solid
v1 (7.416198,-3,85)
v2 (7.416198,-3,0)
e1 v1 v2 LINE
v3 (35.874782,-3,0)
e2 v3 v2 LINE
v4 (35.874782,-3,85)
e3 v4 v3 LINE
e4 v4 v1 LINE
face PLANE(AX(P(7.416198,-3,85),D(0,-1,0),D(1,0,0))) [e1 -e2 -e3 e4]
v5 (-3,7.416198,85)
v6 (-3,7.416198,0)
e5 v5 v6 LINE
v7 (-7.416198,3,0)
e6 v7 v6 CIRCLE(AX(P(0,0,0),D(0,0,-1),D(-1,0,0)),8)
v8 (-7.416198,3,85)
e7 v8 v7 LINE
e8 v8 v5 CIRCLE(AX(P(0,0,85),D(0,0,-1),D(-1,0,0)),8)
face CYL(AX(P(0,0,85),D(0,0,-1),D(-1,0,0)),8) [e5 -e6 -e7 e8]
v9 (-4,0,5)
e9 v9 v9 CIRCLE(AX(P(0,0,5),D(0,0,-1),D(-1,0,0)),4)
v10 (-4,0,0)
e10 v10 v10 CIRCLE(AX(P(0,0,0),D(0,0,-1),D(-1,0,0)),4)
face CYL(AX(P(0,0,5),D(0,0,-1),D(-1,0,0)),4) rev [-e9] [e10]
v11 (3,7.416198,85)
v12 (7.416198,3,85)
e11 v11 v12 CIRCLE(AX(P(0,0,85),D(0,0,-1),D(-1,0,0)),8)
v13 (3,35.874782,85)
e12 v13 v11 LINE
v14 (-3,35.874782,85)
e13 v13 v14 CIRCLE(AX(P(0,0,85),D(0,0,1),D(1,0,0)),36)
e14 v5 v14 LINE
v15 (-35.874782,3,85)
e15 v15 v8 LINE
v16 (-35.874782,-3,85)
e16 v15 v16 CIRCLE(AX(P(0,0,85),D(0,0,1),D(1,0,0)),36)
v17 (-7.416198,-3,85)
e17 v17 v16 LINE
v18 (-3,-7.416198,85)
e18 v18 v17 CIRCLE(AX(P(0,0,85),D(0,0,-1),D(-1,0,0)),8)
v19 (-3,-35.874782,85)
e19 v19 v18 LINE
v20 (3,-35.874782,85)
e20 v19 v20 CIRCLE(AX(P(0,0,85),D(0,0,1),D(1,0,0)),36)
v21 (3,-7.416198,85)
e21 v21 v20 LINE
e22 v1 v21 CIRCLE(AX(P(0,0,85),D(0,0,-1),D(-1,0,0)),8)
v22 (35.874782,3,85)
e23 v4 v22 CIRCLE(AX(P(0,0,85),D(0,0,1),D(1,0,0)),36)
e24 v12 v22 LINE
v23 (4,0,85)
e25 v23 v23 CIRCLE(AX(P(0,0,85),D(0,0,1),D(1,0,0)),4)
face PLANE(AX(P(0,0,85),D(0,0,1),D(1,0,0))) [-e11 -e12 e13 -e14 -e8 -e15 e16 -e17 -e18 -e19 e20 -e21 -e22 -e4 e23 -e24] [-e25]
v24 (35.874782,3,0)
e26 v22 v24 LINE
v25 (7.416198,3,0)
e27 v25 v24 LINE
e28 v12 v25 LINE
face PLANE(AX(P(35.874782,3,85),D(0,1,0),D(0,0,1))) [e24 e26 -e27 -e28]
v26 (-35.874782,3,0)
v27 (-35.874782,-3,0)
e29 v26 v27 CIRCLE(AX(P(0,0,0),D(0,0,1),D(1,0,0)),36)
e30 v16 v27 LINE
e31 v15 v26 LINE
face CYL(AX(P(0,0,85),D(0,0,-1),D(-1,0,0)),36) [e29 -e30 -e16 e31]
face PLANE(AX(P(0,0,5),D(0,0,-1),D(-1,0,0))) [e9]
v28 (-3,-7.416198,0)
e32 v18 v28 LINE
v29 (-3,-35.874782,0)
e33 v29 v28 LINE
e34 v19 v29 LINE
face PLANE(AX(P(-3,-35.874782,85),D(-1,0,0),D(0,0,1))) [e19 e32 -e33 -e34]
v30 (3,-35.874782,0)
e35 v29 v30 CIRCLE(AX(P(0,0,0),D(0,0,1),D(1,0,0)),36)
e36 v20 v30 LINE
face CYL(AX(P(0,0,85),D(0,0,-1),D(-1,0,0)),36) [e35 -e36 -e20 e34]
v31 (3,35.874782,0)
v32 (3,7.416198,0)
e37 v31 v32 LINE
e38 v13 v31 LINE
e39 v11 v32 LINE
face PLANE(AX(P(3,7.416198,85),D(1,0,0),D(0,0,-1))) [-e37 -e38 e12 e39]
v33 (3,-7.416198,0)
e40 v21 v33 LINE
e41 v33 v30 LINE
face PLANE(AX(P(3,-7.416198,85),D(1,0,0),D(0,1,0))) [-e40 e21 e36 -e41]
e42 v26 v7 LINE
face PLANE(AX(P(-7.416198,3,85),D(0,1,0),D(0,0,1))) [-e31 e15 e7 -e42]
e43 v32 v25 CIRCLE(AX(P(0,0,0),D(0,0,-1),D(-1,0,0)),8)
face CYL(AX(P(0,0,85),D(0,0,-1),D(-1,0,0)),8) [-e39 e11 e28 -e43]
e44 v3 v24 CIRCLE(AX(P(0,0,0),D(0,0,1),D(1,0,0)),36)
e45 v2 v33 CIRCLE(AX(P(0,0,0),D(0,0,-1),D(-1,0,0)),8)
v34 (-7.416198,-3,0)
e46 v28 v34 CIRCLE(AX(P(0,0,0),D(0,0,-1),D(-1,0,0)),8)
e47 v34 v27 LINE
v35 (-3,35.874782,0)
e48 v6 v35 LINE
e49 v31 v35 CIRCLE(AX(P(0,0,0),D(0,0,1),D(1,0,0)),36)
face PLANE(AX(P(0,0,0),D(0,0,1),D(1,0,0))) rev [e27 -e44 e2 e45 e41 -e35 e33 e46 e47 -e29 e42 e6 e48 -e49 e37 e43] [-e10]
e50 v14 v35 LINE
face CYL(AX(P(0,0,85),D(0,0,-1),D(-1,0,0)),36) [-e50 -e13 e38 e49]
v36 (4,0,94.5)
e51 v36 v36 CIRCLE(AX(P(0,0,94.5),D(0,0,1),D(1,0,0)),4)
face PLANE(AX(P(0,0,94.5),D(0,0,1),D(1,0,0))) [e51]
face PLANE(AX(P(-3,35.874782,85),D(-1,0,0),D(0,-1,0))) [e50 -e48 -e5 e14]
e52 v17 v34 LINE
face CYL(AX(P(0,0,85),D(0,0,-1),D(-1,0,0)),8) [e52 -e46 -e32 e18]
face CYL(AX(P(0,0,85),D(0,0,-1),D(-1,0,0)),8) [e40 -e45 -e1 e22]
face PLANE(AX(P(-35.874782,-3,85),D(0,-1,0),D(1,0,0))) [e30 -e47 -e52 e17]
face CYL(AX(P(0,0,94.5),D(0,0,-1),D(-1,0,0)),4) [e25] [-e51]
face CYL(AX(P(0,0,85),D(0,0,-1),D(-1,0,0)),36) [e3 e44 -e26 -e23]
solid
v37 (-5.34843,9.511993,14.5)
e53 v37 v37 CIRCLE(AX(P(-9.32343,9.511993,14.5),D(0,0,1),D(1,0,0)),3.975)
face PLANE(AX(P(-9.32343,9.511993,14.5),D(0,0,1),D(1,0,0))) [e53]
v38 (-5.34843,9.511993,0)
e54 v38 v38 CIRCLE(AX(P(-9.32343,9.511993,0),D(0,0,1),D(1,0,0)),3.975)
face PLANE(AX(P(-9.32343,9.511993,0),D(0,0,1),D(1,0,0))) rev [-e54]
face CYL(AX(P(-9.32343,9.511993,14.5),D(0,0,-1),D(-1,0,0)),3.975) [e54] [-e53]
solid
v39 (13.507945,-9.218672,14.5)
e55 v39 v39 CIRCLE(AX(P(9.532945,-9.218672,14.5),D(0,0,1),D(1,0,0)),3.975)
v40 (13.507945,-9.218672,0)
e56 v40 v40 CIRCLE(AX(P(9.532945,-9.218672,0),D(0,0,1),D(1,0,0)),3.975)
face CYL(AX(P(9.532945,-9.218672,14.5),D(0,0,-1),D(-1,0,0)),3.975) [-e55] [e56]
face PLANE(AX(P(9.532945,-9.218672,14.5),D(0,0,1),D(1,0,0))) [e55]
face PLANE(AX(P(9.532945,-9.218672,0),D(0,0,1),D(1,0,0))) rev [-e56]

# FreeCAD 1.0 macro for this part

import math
import FreeCAD as App
import Part
import Sketcher
Q = App.Units.Quantity

doc = App.newDocument("Part")
params = doc.addObject("Spreadsheet::Sheet", "Params")
for row, (alias, value) in enumerate([
    ("sketch1_diameter", "72 mm"),
    ("pad1_length", "85 mm"),
    ("sketch2_diameter", "8 mm"),
    ("pocket1_length", "5 mm"),
    ("sketch3_radius", "36 mm"),
    ("sketch3_radius2", "8 mm"),
    ("sketch4_diameter", "8 mm"),
    ("pad2_length", "9.5 mm"),
    ("sketch5_diameter", "7.95 mm"),
    ("pad3_length", "14.5 mm"),
    ("sketch6_diameter", "7.95 mm"),
    ("pad4_length", "14.5 mm"),
], start=1):
    params.set(f"A{row}", alias)
    params.set(f"B{row}", "=" + value)
    params.setAlias(f"B{row}", alias)

body = doc.addObject("PartDesign::Body", "Body")

# Sketch on XY plane
sketch1 = body.newObject("Sketcher::SketchObject", "Sketch")
sketch1.AttachmentSupport = (doc.getObject("XY_Plane"), [""])
sketch1.MapMode = "FlatFace"
sketch1.addGeometry(Part.Circle(App.Vector(0, 0, 0), App.Vector(0, 0, 1), 36), False)
sketch1.addConstraint(Sketcher.Constraint("Coincident", 0, 3, -1, 1))
sketch1.addConstraint(Sketcher.Constraint("Diameter", 0, Q("72 mm")))
sketch1.setExpression("Constraints[1]", "Params.sketch1_diameter")
pad1 = body.newObject("PartDesign::Pad", "Pad")
pad1.Profile = sketch1
pad1.setExpression("Length", "Params.pad1_length")

# Sketch on XY plane
sketch2 = body.newObject("Sketcher::SketchObject", "Sketch001")
sketch2.AttachmentSupport = (doc.getObject("XY_Plane"), [""])
sketch2.MapMode = "FlatFace"
sketch2.addGeometry(Part.Circle(App.Vector(0, 0, 0), App.Vector(0, 0, 1), 4), False)
sketch2.addConstraint(Sketcher.Constraint("Coincident", 0, 3, -1, 1))
sketch2.addConstraint(Sketcher.Constraint("Diameter", 0, Q("8 mm")))
sketch2.setExpression("Constraints[1]", "Params.sketch2_diameter")
pocket1 = body.newObject("PartDesign::Pocket", "Pocket")
pocket1.Profile = sketch2
pocket1.setExpression("Length", "Params.pocket1_length")
pocket1.Reversed = True

# Sketch on XY plane
sketch3 = body.newObject("Sketcher::SketchObject", "Sketch002")
sketch3.AttachmentSupport = (doc.getObject("XY_Plane"), [""])
sketch3.MapMode = "FlatFace"
sketch3.addGeometry(Part.LineSegment(App.Vector(50, 50, 0), App.Vector(50, -50, 0)), False)
sketch3.addGeometry(Part.LineSegment(App.Vector(50, -50, 0), App.Vector(-50, -50, 0)), False)
sketch3.addGeometry(Part.LineSegment(App.Vector(-50, -50, 0), App.Vector(-50, 50, 0)), False)
sketch3.addGeometry(Part.LineSegment(App.Vector(-50, 50, 0), App.Vector(50, 50, 0)), False)
sketch3.addGeometry(Part.ArcOfCircle(Part.Circle(App.Vector(0, 0, 0), App.Vector(0, 0, 1), 36), math.radians(-4.78), math.radians(4.78)), False)
sketch3.addGeometry(Part.LineSegment(App.Vector(36, 3, 0), App.Vector(7, 3, 0)), False)
sketch3.addGeometry(Part.ArcOfCircle(Part.Circle(App.Vector(0, 0, 0), App.Vector(0, 0, 1), 8), math.radians(22), math.radians(68)), False)
sketch3.addGeometry(Part.LineSegment(App.Vector(3, 7, 0), App.Vector(3, 36, 0)), False)
sketch3.addGeometry(Part.ArcOfCircle(Part.Circle(App.Vector(0, 0, 0), App.Vector(0, 0, 1), 36), math.radians(85.22), math.radians(94.78)), False)
sketch3.addGeometry(Part.LineSegment(App.Vector(-3, 36, 0), App.Vector(-3, 7, 0)), False)
sketch3.addGeometry(Part.ArcOfCircle(Part.Circle(App.Vector(0, 0, 0), App.Vector(0, 0, 1), 8), math.radians(112), math.radians(158)), False)
sketch3.addGeometry(Part.LineSegment(App.Vector(-7, 3, 0), App.Vector(-36, 3, 0)), False)
sketch3.addGeometry(Part.ArcOfCircle(Part.Circle(App.Vector(0, 0, 0), App.Vector(0, 0, 1), 36), math.radians(175.22), math.radians(184.78)), False)
sketch3.addGeometry(Part.LineSegment(App.Vector(-36, -3, 0), App.Vector(-7, -3, 0)), False)
sketch3.addGeometry(Part.ArcOfCircle(Part.Circle(App.Vector(0, 0, 0), App.Vector(0, 0, 1), 8), math.radians(-158), math.radians(-112)), False)
sketch3.addGeometry(Part.LineSegment(App.Vector(-3, -7, 0), App.Vector(-3, -36, 0)), False)
sketch3.addGeometry(Part.ArcOfCircle(Part.Circle(App.Vector(0, 0, 0), App.Vector(0, 0, 1), 36), math.radians(-94.78), math.radians(-85.22)), False)
sketch3.addGeometry(Part.LineSegment(App.Vector(3, -36, 0), App.Vector(3, -7, 0)), False)
sketch3.addGeometry(Part.ArcOfCircle(Part.Circle(App.Vector(0, 0, 0), App.Vector(0, 0, 1), 8), math.radians(-68), math.radians(-22)), False)
sketch3.addGeometry(Part.LineSegment(App.Vector(7, -3, 0), App.Vector(36, -3, 0)), False)
sketch3.addConstraint(Sketcher.Constraint("Coincident", 0, 2, 1, 1))
sketch3.addConstraint(Sketcher.Constraint("Coincident", 1, 2, 2, 1))
sketch3.addConstraint(Sketcher.Constraint("Coincident", 2, 2, 3, 1))
sketch3.addConstraint(Sketcher.Constraint("Coincident", 3, 2, 0, 1))
sketch3.addConstraint(Sketcher.Constraint("Coincident", 4, 2, 5, 1))
sketch3.addConstraint(Sketcher.Constraint("Coincident", 5, 2, 6, 1))
sketch3.addConstraint(Sketcher.Constraint("Coincident", 6, 2, 7, 1))
sketch3.addConstraint(Sketcher.Constraint("Coincident", 7, 2, 8, 1))
sketch3.addConstraint(Sketcher.Constraint("Coincident", 8, 2, 9, 1))
sketch3.addConstraint(Sketcher.Constraint("Coincident", 9, 2, 10, 1))
sketch3.addConstraint(Sketcher.Constraint("Coincident", 10, 2, 11, 1))
sketch3.addConstraint(Sketcher.Constraint("Coincident", 11, 2, 12, 1))
sketch3.addConstraint(Sketcher.Constraint("Coincident", 12, 2, 13, 1))
sketch3.addConstraint(Sketcher.Constraint("Coincident", 13, 2, 14, 1))
sketch3.addConstraint(Sketcher.Constraint("Coincident", 14, 2, 15, 1))
sketch3.addConstraint(Sketcher.Constraint("Coincident", 15, 2, 16, 1))
sketch3.addConstraint(Sketcher.Constraint("Coincident", 16, 2, 17, 1))
sketch3.addConstraint(Sketcher.Constraint("Coincident", 17, 2, 18, 1))
sketch3.addConstraint(Sketcher.Constraint("Coincident", 18, 2, 19, 1))
sketch3.addConstraint(Sketcher.Constraint("Coincident", 19, 2, 4, 1))
sketch3.addConstraint(Sketcher.Constraint("Vertical", 0))
sketch3.addConstraint(Sketcher.Constraint("Horizontal", 1))
sketch3.addConstraint(Sketcher.Constraint("Vertical", 2))
sketch3.addConstraint(Sketcher.Constraint("Horizontal", 3))
sketch3.addConstraint(Sketcher.Constraint("Horizontal", 5))
sketch3.addConstraint(Sketcher.Constraint("Vertical", 7))
sketch3.addConstraint(Sketcher.Constraint("Vertical", 9))
sketch3.addConstraint(Sketcher.Constraint("Horizontal", 11))
sketch3.addConstraint(Sketcher.Constraint("Horizontal", 13))
sketch3.addConstraint(Sketcher.Constraint("Vertical", 15))
sketch3.addConstraint(Sketcher.Constraint("Vertical", 17))
sketch3.addConstraint(Sketcher.Constraint("Horizontal", 19))
sketch3.addConstraint(Sketcher.Constraint("Coincident", 4, 3, -1, 1))
sketch3.addConstraint(Sketcher.Constraint("Coincident", 6, 3, -1, 1))
sketch3.addConstraint(Sketcher.Constraint("Coincident", 8, 3, -1, 1))
sketch3.addConstraint(Sketcher.Constraint("Coincident", 10, 3, -1, 1))
sketch3.addConstraint(Sketcher.Constraint("Coincident", 12, 3, -1, 1))
sketch3.addConstraint(Sketcher.Constraint("Coincident", 14, 3, -1, 1))
sketch3.addConstraint(Sketcher.Constraint("Coincident", 16, 3, -1, 1))
sketch3.addConstraint(Sketcher.Constraint("Coincident", 18, 3, -1, 1))
sketch3.addConstraint(Sketcher.Constraint("Equal", 4, 8))
sketch3.addConstraint(Sketcher.Constraint("Equal", 6, 10))
sketch3.addConstraint(Sketcher.Constraint("Equal", 8, 12))
sketch3.addConstraint(Sketcher.Constraint("Equal", 10, 14))
sketch3.addConstraint(Sketcher.Constraint("Equal", 12, 16))
sketch3.addConstraint(Sketcher.Constraint("Equal", 14, 18))
sketch3.addConstraint(Sketcher.Constraint("Symmetric", 0, 2, 2, 2, -1, 1))
sketch3.addConstraint(Sketcher.Constraint("Horizontal", 7, 2, 8, 2))
sketch3.addConstraint(Sketcher.Constraint("Horizontal", 5, 2, 10, 2))
sketch3.addConstraint(Sketcher.Constraint("Horizontal", 15, 2, 16, 2))
sketch3.addConstraint(Sketcher.Constraint("Horizontal", 13, 2, 18, 2))
sketch3.addConstraint(Sketcher.Constraint("Vertical", 11, 2, 12, 2))
sketch3.addConstraint(Sketcher.Constraint("Vertical", 9, 2, 14, 2))
sketch3.addConstraint(Sketcher.Constraint("Equal", 3, 0))
sketch3.addConstraint(Sketcher.Constraint("Equal", 19, 7))
sketch3.addConstraint(Sketcher.Constraint("Radius", 4, Q("36 mm")))
sketch3.addConstraint(Sketcher.Constraint("Radius", 6, Q("8 mm")))
sketch3.addConstraint(Sketcher.Constraint("DistanceY", -1, 1, 4, 2, Q("3 mm")))
sketch3.addConstraint(Sketcher.Constraint("DistanceX", 1, 2, 1, 1, Q("100.528 mm")))
sketch3.setExpression("Constraints[55]", "Params.sketch3_radius")
sketch3.setExpression("Constraints[56]", "Params.sketch3_radius2")
pocket2 = body.newObject("PartDesign::Pocket", "Pocket001")
pocket2.Profile = sketch3
pocket2.Type = "ThroughAll"
pocket2.Reversed = True

# Sketch on XY plane
sketch4 = body.newObject("Sketcher::SketchObject", "Sketch003")
sketch4.AttachmentSupport = (doc.getObject("XY_Plane"), [""])
sketch4.MapMode = "FlatFace"
sketch4.AttachmentOffset = App.Placement(App.Vector(0, 0, 85), App.Rotation())
sketch4.addGeometry(Part.Circle(App.Vector(0, 0, 0), App.Vector(0, 0, 1), 4), False)
sketch4.addConstraint(Sketcher.Constraint("Coincident", 0, 3, -1, 1))
sketch4.addConstraint(Sketcher.Constraint("Diameter", 0, Q("8 mm")))
sketch4.setExpression("Constraints[1]", "Params.sketch4_diameter")
pad2 = body.newObject("PartDesign::Pad", "Pad001")
pad2.Profile = sketch4
pad2.setExpression("Length", "Params.pad2_length")
body2 = doc.addObject("PartDesign::Body", "Body001")

# Sketch on XY plane
sketch5 = body2.newObject("Sketcher::SketchObject", "Sketch004")
sketch5.AttachmentSupport = (doc.getObject("XY_Plane001"), [""])
sketch5.MapMode = "FlatFace"
sketch5.addGeometry(Part.Circle(App.Vector(-9.3, 9.5, 0), App.Vector(0, 0, 1), 4), False)
sketch5.addConstraint(Sketcher.Constraint("Diameter", 0, Q("7.95 mm")))
sketch5.addConstraint(Sketcher.Constraint("DistanceX", 0, 3, -1, 1, Q("9.32343 mm")))
sketch5.addConstraint(Sketcher.Constraint("DistanceY", -1, 1, 0, 3, Q("9.511993 mm")))
sketch5.setExpression("Constraints[0]", "Params.sketch5_diameter")
pad3 = body2.newObject("PartDesign::Pad", "Pad002")
pad3.Profile = sketch5
pad3.setExpression("Length", "Params.pad3_length")
body3 = doc.addObject("PartDesign::Body", "Body002")

# Sketch on XY plane
sketch6 = body3.newObject("Sketcher::SketchObject", "Sketch005")
sketch6.AttachmentSupport = (doc.getObject("XY_Plane002"), [""])
sketch6.MapMode = "FlatFace"
sketch6.addGeometry(Part.Circle(App.Vector(9.5, -9.2, 0), App.Vector(0, 0, 1), 4), False)
sketch6.addConstraint(Sketcher.Constraint("Diameter", 0, Q("7.95 mm")))
sketch6.addConstraint(Sketcher.Constraint("DistanceX", -1, 1, 0, 3, Q("9.532945 mm")))
sketch6.addConstraint(Sketcher.Constraint("DistanceY", 0, 3, -1, 1, Q("9.218672 mm")))
sketch6.setExpression("Constraints[0]", "Params.sketch6_diameter")
pad4 = body3.newObject("PartDesign::Pad", "Pad003")
pad4.Profile = sketch6
pad4.setExpression("Length", "Params.pad4_length")

doc.recompute()
